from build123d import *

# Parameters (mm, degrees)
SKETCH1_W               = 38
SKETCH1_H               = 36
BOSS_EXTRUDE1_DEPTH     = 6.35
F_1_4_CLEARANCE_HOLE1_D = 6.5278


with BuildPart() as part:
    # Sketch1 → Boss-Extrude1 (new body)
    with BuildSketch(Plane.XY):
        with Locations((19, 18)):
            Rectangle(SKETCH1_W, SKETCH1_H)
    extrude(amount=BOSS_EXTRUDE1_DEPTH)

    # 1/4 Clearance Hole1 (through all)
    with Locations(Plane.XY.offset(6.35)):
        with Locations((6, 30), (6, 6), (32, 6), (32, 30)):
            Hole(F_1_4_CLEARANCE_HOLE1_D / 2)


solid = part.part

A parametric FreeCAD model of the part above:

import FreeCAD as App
import Part
import Sketcher
from FreeCAD import Vector


def add_polygon(sketch, points):
    """Adds a closed chain of lines whose ends are joined by coincident constraints."""
    first, n = sketch.GeometryCount, len(points)
    for a, b in zip(points, points[1:] + points[:1]):
        sketch.addGeometry(Part.LineSegment(App.Vector(*a, 0), App.Vector(*b, 0)), False)
    for i in range(n):
        sketch.addConstraint(Sketcher.Constraint("Coincident", first + i, 2, first + (i + 1) % n, 1))

doc = App.newDocument("Part")
body = doc.addObject("PartDesign::Body", "Body")

# Sketch on XY plane
sketch1 = body.newObject("Sketcher::SketchObject", "Sketch")
sketch1.AttachmentSupport = (doc.getObject("XY_Plane"), [""])
sketch1.MapMode = "FlatFace"
add_polygon(sketch1, [(0, 36), (0, 0), (38, 0), (38, 36)])  # lines 0-3
sketch1.addConstraint([
    Sketcher.Constraint("Vertical", 0),
    Sketcher.Constraint("Horizontal", 1),
    Sketcher.Constraint("Vertical", 2),
    Sketcher.Constraint("Horizontal", 3),
    Sketcher.Constraint("Coincident", 0, 2, -1, 1),
    Sketcher.Constraint("DistanceX", 1, 1, 1, 2, 38.0),
    Sketcher.Constraint("DistanceY", 0, 2, 0, 1, 36.0),
])
pad1 = body.newObject("PartDesign::Pad", "Pad")
pad1.Profile = sketch1
pad1.Length = 6.35

# Sketch on XY plane
sketch2 = body.newObject("Sketcher::SketchObject", "Sketch001")
sketch2.AttachmentSupport = (doc.getObject("XY_Plane"), [""])
sketch2.MapMode = "FlatFace"
sketch2.AttachmentOffset = App.Placement(Vector(0, 0, 6.35), App.Rotation())
sketch2.addGeometry([
    Part.Circle(Vector(6, 30, 0), Vector(0, 0, 1), 3.3),
    Part.Circle(Vector(6, 6, 0), Vector(0, 0, 1), 3.3),
    Part.Circle(Vector(32, 6, 0), Vector(0, 0, 1), 3.3),
    Part.Circle(Vector(32, 30, 0), Vector(0, 0, 1), 3.3),
], False)
sketch2.addConstraint([
    Sketcher.Constraint("Equal", 0, 1),
    Sketcher.Constraint("Equal", 1, 2),
    Sketcher.Constraint("Equal", 2, 3),
    Sketcher.Constraint("Horizontal", 1, 3, 2, 3),
    Sketcher.Constraint("Horizontal", 0, 3, 3, 3),
    Sketcher.Constraint("Vertical", 0, 3, 1, 3),
    Sketcher.Constraint("Vertical", 2, 3, 3, 3),
    Sketcher.Constraint("DistanceX", -1, 1, 0, 3, 6.0),
    Sketcher.Constraint("DistanceY", -1, 1, 0, 3, 30.0),
    Sketcher.Constraint("DistanceY", -1, 1, 1, 3, 6.0),
    Sketcher.Constraint("DistanceX", -1, 1, 2, 3, 32.0),
    Sketcher.Constraint("Diameter", 0, 6.5278),
])
doc.recompute()
hole = body.newObject("PartDesign::Hole", "Hole")
hole.Profile = sketch2
hole.ThreadType = "None"
hole.Diameter = 6.5278
hole.DepthType = "ThroughAll"

doc.recompute()
